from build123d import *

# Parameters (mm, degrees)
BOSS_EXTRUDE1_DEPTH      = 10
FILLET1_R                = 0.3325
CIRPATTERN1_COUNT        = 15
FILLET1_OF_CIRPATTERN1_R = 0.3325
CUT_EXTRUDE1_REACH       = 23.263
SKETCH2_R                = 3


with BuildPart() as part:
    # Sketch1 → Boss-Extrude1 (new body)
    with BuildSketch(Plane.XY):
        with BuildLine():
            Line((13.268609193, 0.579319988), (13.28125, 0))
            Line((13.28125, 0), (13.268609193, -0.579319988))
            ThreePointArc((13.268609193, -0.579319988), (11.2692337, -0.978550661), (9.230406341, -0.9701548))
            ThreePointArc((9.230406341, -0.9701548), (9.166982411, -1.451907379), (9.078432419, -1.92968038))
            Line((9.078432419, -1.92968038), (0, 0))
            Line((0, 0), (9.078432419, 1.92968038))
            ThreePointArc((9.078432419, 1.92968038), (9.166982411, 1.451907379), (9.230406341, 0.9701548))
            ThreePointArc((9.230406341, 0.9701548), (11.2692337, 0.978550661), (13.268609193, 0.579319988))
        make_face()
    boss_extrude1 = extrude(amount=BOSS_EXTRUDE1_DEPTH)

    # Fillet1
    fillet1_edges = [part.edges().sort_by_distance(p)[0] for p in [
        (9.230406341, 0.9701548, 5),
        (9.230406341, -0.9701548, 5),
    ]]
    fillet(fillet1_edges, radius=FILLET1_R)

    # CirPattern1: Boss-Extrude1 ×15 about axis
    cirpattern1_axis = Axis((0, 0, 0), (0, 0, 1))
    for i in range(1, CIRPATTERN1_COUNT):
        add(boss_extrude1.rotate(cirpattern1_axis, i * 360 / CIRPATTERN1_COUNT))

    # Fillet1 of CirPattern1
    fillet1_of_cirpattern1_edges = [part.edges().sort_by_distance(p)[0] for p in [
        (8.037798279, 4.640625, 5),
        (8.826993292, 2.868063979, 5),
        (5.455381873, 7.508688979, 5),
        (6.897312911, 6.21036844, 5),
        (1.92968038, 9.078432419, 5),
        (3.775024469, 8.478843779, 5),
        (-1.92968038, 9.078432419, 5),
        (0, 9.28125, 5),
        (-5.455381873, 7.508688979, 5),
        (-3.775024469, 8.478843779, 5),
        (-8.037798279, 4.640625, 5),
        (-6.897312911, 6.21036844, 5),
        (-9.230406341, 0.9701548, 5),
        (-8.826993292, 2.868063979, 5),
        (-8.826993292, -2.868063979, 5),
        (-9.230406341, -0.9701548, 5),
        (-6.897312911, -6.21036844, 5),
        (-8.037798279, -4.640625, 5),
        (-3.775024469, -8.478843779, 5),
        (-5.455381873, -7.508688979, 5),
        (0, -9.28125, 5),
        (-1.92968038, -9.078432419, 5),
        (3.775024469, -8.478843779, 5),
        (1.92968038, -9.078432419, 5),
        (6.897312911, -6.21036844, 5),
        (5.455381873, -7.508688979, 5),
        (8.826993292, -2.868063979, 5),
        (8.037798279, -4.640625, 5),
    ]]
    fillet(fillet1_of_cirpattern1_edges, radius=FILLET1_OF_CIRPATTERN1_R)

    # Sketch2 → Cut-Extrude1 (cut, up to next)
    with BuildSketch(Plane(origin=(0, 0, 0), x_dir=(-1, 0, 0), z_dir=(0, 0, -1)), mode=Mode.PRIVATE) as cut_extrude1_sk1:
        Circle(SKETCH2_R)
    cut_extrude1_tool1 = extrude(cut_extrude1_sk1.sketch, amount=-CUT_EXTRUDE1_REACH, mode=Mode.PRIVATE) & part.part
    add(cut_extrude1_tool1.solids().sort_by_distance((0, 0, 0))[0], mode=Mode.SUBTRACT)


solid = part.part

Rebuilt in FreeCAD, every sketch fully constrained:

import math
import FreeCAD as App
import Part
import Sketcher

V = App.Vector
Q = App.Units.Quantity


def edges_at(feature, points):
    """Names of the edges that pass closest to the given points."""
    edges = feature.Shape.Edges
    near = lambda p: min(range(len(edges)), key=lambda i: edges[i].distToShape(Part.Vertex(*p))[0])
    return sorted({f"Edge{near(p) + 1}" for p in points})

doc = App.newDocument("Part")
body = doc.addObject("PartDesign::Body", "Body")

sketch1 = body.newObject("Sketcher::SketchObject", "Sketch")
sketch1.AttachmentSupport = (doc.getObject("XY_Plane"), [""])
sketch1.MapMode = "FlatFace"
sketch1.addGeometry([
    Part.LineSegment(V(13.28125, 0, 0), V(13.268609, 0.57932, 0)),
    Part.ArcOfCircle(Part.Circle(V(10.291407, -9.124595, 0), V(0, 0, 1), 10.150355), math.radians(72.943767), math.radians(96)),
    Part.ArcOfCircle(Part.Circle(V(0, 0, 0), V(0, 0, 1), 9.28125), math.radians(6), math.radians(12)),
    Part.LineSegment(V(9.078432, 1.92968, 0), V(0, 0, 0)),
    Part.LineSegment(V(0, 0, 0), V(9.078432, -1.92968, 0)),
    Part.ArcOfCircle(Part.Circle(V(0, 0, 0), V(0, 0, 1), 9.28125), math.radians(-12), math.radians(-6)),
    Part.ArcOfCircle(Part.Circle(V(10.291407, 9.124595, 0), V(0, 0, 1), 10.150355), math.radians(-96), math.radians(-72.943767)),
    Part.LineSegment(V(13.268609, -0.57932, 0), V(13.28125, 0, 0)),
], False)
sketch1.addConstraint([
    Sketcher.Constraint("Coincident", 0, 2, 1, 1),
    Sketcher.Constraint("Coincident", 1, 2, 2, 1),
    Sketcher.Constraint("Coincident", 2, 2, 3, 1),
    Sketcher.Constraint("Coincident", 3, 2, 4, 1),
    Sketcher.Constraint("Coincident", 4, 2, 5, 1),
    Sketcher.Constraint("Coincident", 5, 2, 6, 1),
    Sketcher.Constraint("Coincident", 6, 2, 7, 1),
    Sketcher.Constraint("Coincident", 7, 2, 0, 1),
    Sketcher.Constraint("Coincident", 2, 3, -1, 1),
    Sketcher.Constraint("Coincident", 5, 3, -1, 1),
    Sketcher.Constraint("Coincident", 3, 2, -1, 1),
    Sketcher.Constraint("Equal", 2, 5),
    Sketcher.Constraint("Equal", 1, 6),
    Sketcher.Constraint("Symmetric", 1, 3, 6, 3, -1),
    Sketcher.Constraint("PointOnObject", 7, 2, -1),
    Sketcher.Constraint("Vertical", 2, 2, 4, 2),
    Sketcher.Constraint("Vertical", 0, 2, 6, 2),
    Sketcher.Constraint("Angle", 3, Q("-168 deg")),
    Sketcher.Constraint("Angle", 0, Q("91.25 deg")),
    Sketcher.Constraint("Radius", 2, 9.28125),
    Sketcher.Constraint("Radius", 1, 10.150355),
    Sketcher.Constraint("DistanceX", 1, 2, 6, 3, 1.061001),
    Sketcher.Constraint("DistanceY", 4, 2, 0, 2, 2.509),
    Sketcher.Constraint("DistanceX", 6, 3, 0, 2, 2.977202),
])
pad1 = body.newObject("PartDesign::Pad", "Pad")
pad1.Profile = sketch1
pad1.Length = 10
doc.recompute()

fillet = body.newObject("PartDesign::Fillet", "Fillet")
fillet.Base = (pad1, edges_at(pad1, [(9.23, 0.97, 5), (9.23, -0.97, 5)]))
fillet.Radius = 0.3325
doc.recompute()

polarpattern = body.newObject("PartDesign::PolarPattern", "PolarPattern")
polarpattern.Originals = [pad1]
polarpattern.Axis = (doc.getObject("Z_Axis"), [""])
polarpattern.Angle = 360
polarpattern.Occurrences = 15
body.Tip = polarpattern
doc.recompute()

fillet2 = body.newObject("PartDesign::Fillet", "Fillet001")
fillet2.Base = (polarpattern, edges_at(polarpattern, [
    (8.038, 4.641, 5),
    (8.827, 2.868, 5),
    (5.455, 7.509, 5),
    (6.897, 6.21, 5),
    (1.93, 9.078, 5),
    (3.775, 8.479, 5),
    (-1.93, 9.078, 5),
    (0, 9.281, 5),
    (-5.455, 7.509, 5),
    (-3.775, 8.479, 5),
    (-8.038, 4.641, 5),
    (-6.897, 6.21, 5),
    (-9.23, 0.97, 5),
    (-8.827, 2.868, 5),
    (-8.827, -2.868, 5),
    (-9.23, -0.97, 5),
    (-6.897, -6.21, 5),
    (-8.038, -4.641, 5),
    (-3.775, -8.479, 5),
    (-5.455, -7.509, 5),
    (0, -9.281, 5),
    (-1.93, -9.078, 5),
    (3.775, -8.479, 5),
    (1.93, -9.078, 5),
    (6.897, -6.21, 5),
    (5.455, -7.509, 5),
    (8.827, -2.868, 5),
    (8.038, -4.641, 5),
]))
fillet2.Radius = 0.3325

sketch2 = body.newObject("Sketcher::SketchObject", "Sketch001")
sketch2.AttachmentSupport = (doc.getObject("XY_Plane"), [""])
sketch2.MapMode = "FlatFace"
sketch2.addGeometry(Part.Circle(V(0, 0, 0), V(0, 0, 1), 3), False)
sketch2.addConstraint([
    Sketcher.Constraint("Coincident", 0, 3, -1, 1),
    Sketcher.Constraint("Diameter", 0, 6.0),
])
pocket1 = body.newObject("PartDesign::Pocket", "Pocket")
pocket1.Profile = sketch2
pocket1.Type = "UpToFirst"
pocket1.Reversed = True

doc.recompute()
